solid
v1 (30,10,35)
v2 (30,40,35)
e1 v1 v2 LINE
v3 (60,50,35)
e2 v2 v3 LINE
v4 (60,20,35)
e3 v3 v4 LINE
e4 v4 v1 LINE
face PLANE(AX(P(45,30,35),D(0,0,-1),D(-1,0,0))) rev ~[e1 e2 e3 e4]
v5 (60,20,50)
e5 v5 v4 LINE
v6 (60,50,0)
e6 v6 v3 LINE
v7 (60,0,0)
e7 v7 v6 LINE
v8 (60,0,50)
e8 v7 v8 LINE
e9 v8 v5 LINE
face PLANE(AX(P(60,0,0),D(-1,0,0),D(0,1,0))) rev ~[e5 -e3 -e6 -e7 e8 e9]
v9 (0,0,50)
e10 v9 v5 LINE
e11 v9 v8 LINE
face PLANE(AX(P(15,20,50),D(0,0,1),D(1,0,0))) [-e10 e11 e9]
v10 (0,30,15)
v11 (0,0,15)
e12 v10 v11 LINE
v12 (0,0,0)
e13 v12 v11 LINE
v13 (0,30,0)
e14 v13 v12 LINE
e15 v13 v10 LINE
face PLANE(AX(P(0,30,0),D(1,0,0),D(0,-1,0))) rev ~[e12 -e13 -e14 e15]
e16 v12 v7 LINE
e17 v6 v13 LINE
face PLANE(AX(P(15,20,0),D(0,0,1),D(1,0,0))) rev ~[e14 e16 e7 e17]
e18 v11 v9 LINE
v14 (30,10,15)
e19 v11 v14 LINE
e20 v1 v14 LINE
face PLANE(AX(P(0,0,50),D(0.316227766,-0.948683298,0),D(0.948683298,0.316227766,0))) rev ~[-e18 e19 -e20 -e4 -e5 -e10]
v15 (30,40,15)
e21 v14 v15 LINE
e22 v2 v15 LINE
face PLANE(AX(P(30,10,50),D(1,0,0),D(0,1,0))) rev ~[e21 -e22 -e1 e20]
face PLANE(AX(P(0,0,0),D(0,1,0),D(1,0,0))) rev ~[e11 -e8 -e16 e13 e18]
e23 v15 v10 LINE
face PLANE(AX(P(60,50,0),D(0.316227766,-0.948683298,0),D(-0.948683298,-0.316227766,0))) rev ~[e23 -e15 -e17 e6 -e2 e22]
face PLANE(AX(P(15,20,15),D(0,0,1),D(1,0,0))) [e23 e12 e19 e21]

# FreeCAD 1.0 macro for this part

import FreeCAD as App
import Part
import Sketcher
from FreeCAD import Vector


def add_polygon(sketch, points):
    """Adds a closed chain of lines whose ends are joined by coincident constraints."""
    first, n = sketch.GeometryCount, len(points)
    for a, b in zip(points, points[1:] + points[:1]):
        sketch.addGeometry(Part.LineSegment(App.Vector(*a, 0), App.Vector(*b, 0)), False)
    for i in range(n):
        sketch.addConstraint(Sketcher.Constraint("Coincident", first + i, 2, first + (i + 1) % n, 1))

doc = App.newDocument("Part")
params = doc.addObject("Spreadsheet::Sheet", "Params")
for row, (alias, value) in enumerate([
    ("sketch1_width", "60 mm"),
    ("sketch1_height", "30 mm"),
    ("sketch1_height2", "50 mm"),
    ("pad1_length", "50 mm"),
    ("sketch2_height", "30 mm"),
    ("pocket1_length", "35 mm"),
    ("sketch3_height", "30 mm"),
    ("pocket2_length", "15 mm"),
], start=1):
    params.set(f"A{row}", alias)
    params.set(f"B{row}", "=" + value)
    params.setAlias(f"B{row}", alias)

body = doc.addObject("PartDesign::Body", "Body")

# Sketch on XY plane
sketch1 = body.newObject("Sketcher::SketchObject", "Sketch")
sketch1.AttachmentSupport = (doc.getObject("XY_Plane"), [""])
sketch1.MapMode = "FlatFace"
add_polygon(sketch1, [(0, 30), (0, 0), (60, 0), (60, 50)])  # lines 0-3
sketch1.addConstraint([
    Sketcher.Constraint("Vertical", 0),
    Sketcher.Constraint("Horizontal", 1),
    Sketcher.Constraint("Vertical", 2),
    Sketcher.Constraint("Coincident", 0, 2, -1, 1),
    Sketcher.Constraint("DistanceX", 1, 1, 1, 2, 60.0),
    Sketcher.Constraint("DistanceY", 0, 2, 0, 1, 30.0),
    Sketcher.Constraint("DistanceY", 2, 1, 2, 2, 50.0),
])
sketch1.setExpression("Constraints[8]", "Params.sketch1_width")
sketch1.setExpression("Constraints[9]", "Params.sketch1_height")
sketch1.setExpression("Constraints[10]", "Params.sketch1_height2")
pad1 = body.newObject("PartDesign::Pad", "Pad")
pad1.Profile = sketch1
pad1.setExpression("Length", "Params.pad1_length")

# Sketch on XY plane
sketch2 = body.newObject("Sketcher::SketchObject", "Sketch001")
sketch2.AttachmentSupport = (doc.getObject("XY_Plane"), [""])
sketch2.MapMode = "FlatFace"
sketch2.AttachmentOffset = App.Placement(Vector(0, 0, 50), App.Rotation())
add_polygon(sketch2, [(30, 10), (30, 40), (0, 30), (0, 0)])  # lines 0-3
sketch2.addConstraint([
    Sketcher.Constraint("Vertical", 0),
    Sketcher.Constraint("Vertical", 2),
    Sketcher.Constraint("Coincident", 2, 2, -1, 1),
    Sketcher.Constraint("Parallel", 1, 3),
    Sketcher.Constraint("DistanceY", 0, 1, 0, 2, 30.0),
    Sketcher.Constraint("DistanceX", -1, 1, 0, 2, 30.0),
    Sketcher.Constraint("DistanceY", -1, 1, 0, 2, 40.0),
])
sketch2.setExpression("Constraints[8]", "Params.sketch2_height")
pocket1 = body.newObject("PartDesign::Pocket", "Pocket")
pocket1.Profile = sketch2
pocket1.setExpression("Length", "Params.pocket1_length")

# Sketch on XY plane
sketch3 = body.newObject("Sketcher::SketchObject", "Sketch002")
sketch3.AttachmentSupport = (doc.getObject("XY_Plane"), [""])
sketch3.MapMode = "FlatFace"
sketch3.AttachmentOffset = App.Placement(Vector(0, 0, 50), App.Rotation())
add_polygon(sketch3, [(60, 50), (30, 40), (30, 10), (60, 20)])  # lines 0-3
sketch3.addConstraint([
    Sketcher.Constraint("Vertical", 1),
    Sketcher.Constraint("Vertical", 3),
    Sketcher.Constraint("Parallel", 0, 2),
    Sketcher.Constraint("DistanceY", 1, 2, 1, 1, 30.0),
    Sketcher.Constraint("DistanceX", -1, 1, 0, 2, 30.0),
    Sketcher.Constraint("DistanceY", -1, 1, 0, 2, 40.0),
    Sketcher.Constraint("DistanceX", -1, 1, 2, 2, 60.0),
    Sketcher.Constraint("DistanceY", -1, 1, 2, 2, 20.0),
])
sketch3.setExpression("Constraints[7]", "Params.sketch3_height")
pocket2 = body.newObject("PartDesign::Pocket", "Pocket001")
pocket2.Profile = sketch3
pocket2.setExpression("Length", "Params.pocket2_length")

doc.recompute()
